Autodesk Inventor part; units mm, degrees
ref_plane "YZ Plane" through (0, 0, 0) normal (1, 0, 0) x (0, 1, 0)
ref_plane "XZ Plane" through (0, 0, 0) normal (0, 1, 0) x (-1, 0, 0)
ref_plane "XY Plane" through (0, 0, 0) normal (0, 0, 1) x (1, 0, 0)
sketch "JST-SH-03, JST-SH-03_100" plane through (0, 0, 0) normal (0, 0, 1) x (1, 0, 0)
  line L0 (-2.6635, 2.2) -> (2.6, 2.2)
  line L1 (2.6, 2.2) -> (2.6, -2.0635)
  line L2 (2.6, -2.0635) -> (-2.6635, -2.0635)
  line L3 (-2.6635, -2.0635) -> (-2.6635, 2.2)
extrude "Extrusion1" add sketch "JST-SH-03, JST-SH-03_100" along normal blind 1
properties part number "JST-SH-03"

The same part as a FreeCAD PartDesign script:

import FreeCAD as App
import Part
import Sketcher
Q = App.Units.Quantity


def add_polygon(sketch, points):
    """Adds a closed chain of lines whose ends are joined by coincident constraints."""
    first, n = sketch.GeometryCount, len(points)
    for a, b in zip(points, points[1:] + points[:1]):
        sketch.addGeometry(Part.LineSegment(App.Vector(*a, 0), App.Vector(*b, 0)), False)
    for i in range(n):
        sketch.addConstraint(Sketcher.Constraint("Coincident", first + i, 2, first + (i + 1) % n, 1))

doc = App.newDocument("Part")
body = doc.addObject("PartDesign::Body", "Body")

sketch1 = body.newObject("Sketcher::SketchObject", "Sketch")
sketch1.AttachmentSupport = (doc.getObject("XY_Plane"), [""])
sketch1.MapMode = "FlatFace"
add_polygon(sketch1, [(2.6, 2.2), (-2.6635, 2.2), (-2.6635, -2.0635), (2.6, -2.0635)])
sketch1.addConstraint([
    Sketcher.Constraint("Horizontal", 0),
    Sketcher.Constraint("Vertical", 1),
    Sketcher.Constraint("Horizontal", 2),
    Sketcher.Constraint("Vertical", 3),
    Sketcher.Constraint("DistanceY", -1, 1, 0, 2, Q("2.2 mm")),
    Sketcher.Constraint("DistanceX", -1, 1, 2, 2, Q("2.6 mm")),
    Sketcher.Constraint("DistanceX", 0, 2, 0, 1, Q("5.2635 mm")),
    Sketcher.Constraint("DistanceY", 1, 2, 1, 1, Q("4.2635 mm")),
])
pad1 = body.newObject("PartDesign::Pad", "Pad")
pad1.Profile = sketch1
pad1.Length = 1

doc.recompute()
